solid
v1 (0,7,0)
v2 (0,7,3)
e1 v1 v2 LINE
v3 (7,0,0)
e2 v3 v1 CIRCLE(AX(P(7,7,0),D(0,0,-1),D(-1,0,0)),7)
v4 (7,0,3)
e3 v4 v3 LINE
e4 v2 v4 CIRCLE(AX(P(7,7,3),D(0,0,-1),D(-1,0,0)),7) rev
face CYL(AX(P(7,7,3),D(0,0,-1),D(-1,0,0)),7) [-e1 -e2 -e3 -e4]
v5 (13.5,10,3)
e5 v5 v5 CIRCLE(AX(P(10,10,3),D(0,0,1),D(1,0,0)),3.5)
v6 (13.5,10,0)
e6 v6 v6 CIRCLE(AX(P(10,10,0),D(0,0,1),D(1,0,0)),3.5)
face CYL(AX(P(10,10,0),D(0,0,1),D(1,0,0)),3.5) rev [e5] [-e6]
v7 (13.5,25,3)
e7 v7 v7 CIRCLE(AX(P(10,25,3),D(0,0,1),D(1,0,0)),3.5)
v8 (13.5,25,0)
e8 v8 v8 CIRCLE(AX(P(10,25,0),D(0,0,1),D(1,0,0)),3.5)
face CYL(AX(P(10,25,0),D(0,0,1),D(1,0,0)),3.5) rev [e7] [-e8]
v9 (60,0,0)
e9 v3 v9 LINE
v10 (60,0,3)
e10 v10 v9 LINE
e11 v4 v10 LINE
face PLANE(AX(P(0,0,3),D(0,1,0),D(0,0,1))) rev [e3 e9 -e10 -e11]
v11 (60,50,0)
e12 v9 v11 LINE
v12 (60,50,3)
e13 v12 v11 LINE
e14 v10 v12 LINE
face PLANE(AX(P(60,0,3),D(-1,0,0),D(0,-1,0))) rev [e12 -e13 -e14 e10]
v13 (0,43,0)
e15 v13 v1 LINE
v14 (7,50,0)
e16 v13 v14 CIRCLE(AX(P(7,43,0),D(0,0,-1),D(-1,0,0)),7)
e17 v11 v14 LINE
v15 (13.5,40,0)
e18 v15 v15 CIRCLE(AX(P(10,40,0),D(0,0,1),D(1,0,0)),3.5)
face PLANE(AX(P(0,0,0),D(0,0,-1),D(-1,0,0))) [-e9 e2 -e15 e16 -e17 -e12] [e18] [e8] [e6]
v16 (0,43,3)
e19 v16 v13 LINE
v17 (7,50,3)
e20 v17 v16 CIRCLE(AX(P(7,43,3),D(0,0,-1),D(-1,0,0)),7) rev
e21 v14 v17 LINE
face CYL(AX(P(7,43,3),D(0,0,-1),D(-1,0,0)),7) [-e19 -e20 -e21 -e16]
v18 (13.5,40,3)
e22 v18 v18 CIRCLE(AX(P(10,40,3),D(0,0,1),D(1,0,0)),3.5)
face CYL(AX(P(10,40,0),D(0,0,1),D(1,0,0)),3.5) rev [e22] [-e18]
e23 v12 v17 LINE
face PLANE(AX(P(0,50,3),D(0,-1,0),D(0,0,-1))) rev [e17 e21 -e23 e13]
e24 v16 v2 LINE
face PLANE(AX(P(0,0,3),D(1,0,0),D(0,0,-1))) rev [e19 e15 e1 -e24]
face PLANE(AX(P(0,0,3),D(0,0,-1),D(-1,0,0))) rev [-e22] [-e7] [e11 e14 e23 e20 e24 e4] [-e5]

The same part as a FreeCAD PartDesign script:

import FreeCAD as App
import Part
import Sketcher
from FreeCAD import Vector


def edges_at(feature, points):
    """Names of the edges that pass closest to the given points."""
    edges = feature.Shape.Edges
    near = lambda p: min(range(len(edges)), key=lambda i: edges[i].distToShape(Part.Vertex(*p))[0])
    return sorted({f"Edge{near(p) + 1}" for p in points})


def add_polygon(sketch, points):
    """Adds a closed chain of lines whose ends are joined by coincident constraints."""
    first, n = sketch.GeometryCount, len(points)
    for a, b in zip(points, points[1:] + points[:1]):
        sketch.addGeometry(Part.LineSegment(App.Vector(*a, 0), App.Vector(*b, 0)), False)
    for i in range(n):
        sketch.addConstraint(Sketcher.Constraint("Coincident", first + i, 2, first + (i + 1) % n, 1))

doc = App.newDocument("Part")
body = doc.addObject("PartDesign::Body", "Body")

sketch1 = body.newObject("Sketcher::SketchObject", "Sketch")
sketch1.AttachmentSupport = (doc.getObject("XY_Plane"), [""])
sketch1.MapMode = "FlatFace"
add_polygon(sketch1, [(0, 50), (0, 0), (60, 0), (60, 50)])
sketch1.addConstraint([
    Sketcher.Constraint("Vertical", 0),
    Sketcher.Constraint("Horizontal", 1),
    Sketcher.Constraint("Vertical", 2),
    Sketcher.Constraint("Horizontal", 3),
    Sketcher.Constraint("Coincident", 0, 2, -1, 1),
    Sketcher.Constraint("DistanceX", 1, 1, 1, 2, 60.0),
    Sketcher.Constraint("DistanceY", 0, 2, 0, 1, 50.0),
])
pad1 = body.newObject("PartDesign::Pad", "Pad")
pad1.Profile = sketch1
pad1.Length = 3

sketch2 = body.newObject("Sketcher::SketchObject", "Sketch001")
sketch2.AttachmentSupport = (doc.getObject("XY_Plane"), [""])
sketch2.MapMode = "FlatFace"
sketch2.AttachmentOffset = App.Placement(Vector(0, 0, 3), App.Rotation())
sketch2.addGeometry([
    Part.Circle(Vector(10, 10, 0), Vector(0, 0, 1), 3.5),
    Part.Circle(Vector(10, 25, 0), Vector(0, 0, 1), 3.5),
    Part.Circle(Vector(10, 40, 0), Vector(0, 0, 1), 3.5),
], False)
sketch2.addConstraint([
    Sketcher.Constraint("Equal", 0, 1),
    Sketcher.Constraint("Equal", 1, 2),
    Sketcher.Constraint("Vertical", 0, 3, 1, 3),
    Sketcher.Constraint("Vertical", 1, 3, 2, 3),
    Sketcher.Constraint("Diameter", 0, 7.0),
    Sketcher.Constraint("DistanceX", -1, 1, 0, 3, 10.0),
    Sketcher.Constraint("DistanceY", -1, 1, 0, 3, 10.0),
    Sketcher.Constraint("DistanceY", -1, 1, 1, 3, 25.0),
    Sketcher.Constraint("DistanceY", -1, 1, 2, 3, 40.0),
])
pocket1 = body.newObject("PartDesign::Pocket", "Pocket")
pocket1.Profile = sketch2
pocket1.Length = 3
doc.recompute()

fillet = body.newObject("PartDesign::Fillet", "Fillet")
fillet.Base = (pocket1, edges_at(pocket1, [(0, 50, 1.5), (0, 0, 1.5)]))
fillet.Radius = 7

doc.recompute()
